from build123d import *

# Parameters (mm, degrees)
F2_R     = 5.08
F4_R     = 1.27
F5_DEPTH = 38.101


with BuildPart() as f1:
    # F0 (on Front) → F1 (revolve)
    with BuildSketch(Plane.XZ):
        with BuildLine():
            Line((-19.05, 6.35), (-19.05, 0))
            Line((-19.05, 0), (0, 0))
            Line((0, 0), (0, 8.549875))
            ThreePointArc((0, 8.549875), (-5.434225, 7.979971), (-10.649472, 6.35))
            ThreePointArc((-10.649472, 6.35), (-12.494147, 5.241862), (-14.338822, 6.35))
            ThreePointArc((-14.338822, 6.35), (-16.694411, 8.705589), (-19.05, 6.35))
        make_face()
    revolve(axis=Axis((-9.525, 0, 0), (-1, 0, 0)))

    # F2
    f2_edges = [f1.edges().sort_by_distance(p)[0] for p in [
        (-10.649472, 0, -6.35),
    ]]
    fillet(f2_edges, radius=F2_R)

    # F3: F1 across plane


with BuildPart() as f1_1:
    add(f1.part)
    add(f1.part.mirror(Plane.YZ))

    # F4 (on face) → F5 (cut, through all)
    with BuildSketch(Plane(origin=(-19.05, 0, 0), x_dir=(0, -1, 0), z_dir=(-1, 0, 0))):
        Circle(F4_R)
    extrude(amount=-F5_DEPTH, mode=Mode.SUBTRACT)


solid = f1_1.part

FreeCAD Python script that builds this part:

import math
import FreeCAD as App
import Part
import Sketcher
Q = App.Units.Quantity


def edges_at(feature, points):
    """Names of the edges that pass closest to the given points."""
    edges = feature.Shape.Edges
    near = lambda p: min(range(len(edges)), key=lambda i: edges[i].distToShape(Part.Vertex(*p))[0])
    return sorted({f"Edge{near(p) + 1}" for p in points})

doc = App.newDocument("Part")
params = doc.addObject("Spreadsheet::Sheet", "Params")
for row, (alias, value) in enumerate([
    ("sketch1_width", "0.75 in"),
    ("sketch1_height", "0.25 in"),
    ("revolution_angle", "360 deg"),
    ("fillet_radius", "0.2 in"),
    ("sketch2_diameter", "0.1 in"),
], start=1):
    params.set(f"A{row}", alias)
    params.set(f"B{row}", "=" + value)
    params.setAlias(f"B{row}", alias)

body = doc.addObject("PartDesign::Body", "Body")

sketch1 = body.newObject("Sketcher::SketchObject", "Sketch")
sketch1.AttachmentSupport = (doc.getObject("XZ_Plane"), [""])
sketch1.MapMode = "FlatFace"
sketch1.addGeometry(Part.LineSegment(App.Vector(-19.1, 6.3, 0), App.Vector(-19.1, 0, 0)), False)
sketch1.addGeometry(Part.LineSegment(App.Vector(-19.1, 0, 0), App.Vector(0, 0, 0)), False)
sketch1.addGeometry(Part.LineSegment(App.Vector(0, 0, 0), App.Vector(0, 8.5, 0)), False)
sketch1.addGeometry(Part.ArcOfCircle(Part.Circle(App.Vector(0.1, -19, 0), App.Vector(0, 0, 1), 27.6), math.radians(90), math.radians(113)), False)
sketch1.addGeometry(Part.ArcOfCircle(Part.Circle(App.Vector(-12.5, 7.3, 0), App.Vector(0, 0, 1), 2.1), math.radians(-152), math.radians(-28)), False)
sketch1.addGeometry(Part.ArcOfCircle(Part.Circle(App.Vector(-16.7, 6.3, 0), App.Vector(0, 0, 1), 2.4), math.radians(0), math.radians(180)), False)
sketch1.addConstraint(Sketcher.Constraint("Coincident", 0, 2, 1, 1))
sketch1.addConstraint(Sketcher.Constraint("Coincident", 1, 2, 2, 1))
sketch1.addConstraint(Sketcher.Constraint("Coincident", 2, 2, 3, 1))
sketch1.addConstraint(Sketcher.Constraint("Coincident", 3, 2, 4, 2))
sketch1.addConstraint(Sketcher.Constraint("Coincident", 4, 1, 5, 1))
sketch1.addConstraint(Sketcher.Constraint("Tangent", 5, 2, 0, 1))
sketch1.addConstraint(Sketcher.Constraint("Vertical", 0))
sketch1.addConstraint(Sketcher.Constraint("Horizontal", 1))
sketch1.addConstraint(Sketcher.Constraint("Vertical", 2))
sketch1.addConstraint(Sketcher.Constraint("Coincident", 1, 2, -1, 1))
sketch1.addConstraint(Sketcher.Constraint("Horizontal", 5, 3, 3, 2))
sketch1.addConstraint(Sketcher.Constraint("Horizontal", 3, 2, 4, 1))
sketch1.addConstraint(Sketcher.Constraint("DistanceX", 1, 1, 1, 2, Q("0.75 in")))
sketch1.addConstraint(Sketcher.Constraint("DistanceY", 0, 2, 0, 1, Q("0.25 in")))
sketch1.addConstraint(Sketcher.Constraint("Radius", 3, Q("27.581558 mm")))
sketch1.addConstraint(Sketcher.Constraint("Radius", 4, Q("2.089449 mm")))
sketch1.addConstraint(Sketcher.Constraint("Radius", 5, Q("2.355589 mm")))
sketch1.addConstraint(Sketcher.Constraint("DistanceY", 3, 3, -1, 1, Q("19.031299 mm")))
sketch1.addConstraint(Sketcher.Constraint("DistanceY", 2, 1, 2, 2, Q("8.549875 mm")))
sketch1.setExpression("Constraints[12]", "Params.sketch1_width")
sketch1.setExpression("Constraints[13]", "Params.sketch1_height")
revolution = body.newObject("PartDesign::Revolution", "Revolution")
revolution.Profile = sketch1
revolution.ReferenceAxis = (sketch1, ["H_Axis"])
revolution.setExpression("Angle", "Params.revolution_angle")
doc.recompute()

fillet = body.newObject("PartDesign::Fillet", "Fillet")
fillet.Base = (revolution, edges_at(revolution, [(-10.649, 0, -6.35)]))
fillet.setExpression("Radius", "Params.fillet_radius")
body2 = doc.addObject("PartDesign::Body", "Body001")
doc.recompute()

body2.BaseFeature = body
doc.recompute()

mirroring = doc.addObject("Part::Mirroring", "Mirroring")
mirroring.Source = body
mirroring.Base = App.Vector(0, 0, 0)
mirroring.Normal = App.Vector(1, 0, 0)
body3 = doc.addObject("PartDesign::Body", "Body002")
body3.BaseFeature = mirroring
boolean = body2.newObject("PartDesign::Boolean", "Boolean")
boolean.Type = "Fuse"
boolean.addObjects([body3])
doc.recompute()

sketch2 = body2.newObject("Sketcher::SketchObject", "Sketch001")
sketch2.AttachmentSupport = (doc.getObject("YZ_Plane001"), [""])
sketch2.MapMode = "FlatFace"
sketch2.AttachmentOffset = App.Placement(App.Vector(0, 0, -0.75 * 25.4), App.Rotation())
sketch2.addGeometry(Part.Circle(App.Vector(0, 0, 0), App.Vector(0, 0, 1), 1.3), False)
sketch2.addConstraint(Sketcher.Constraint("Coincident", 0, 3, -1, 1))
sketch2.addConstraint(Sketcher.Constraint("Diameter", 0, Q("0.1 in")))
sketch2.setExpression("Constraints[1]", "Params.sketch2_diameter")
pocket1 = body2.newObject("PartDesign::Pocket", "Pocket")
pocket1.Profile = sketch2
pocket1.Type = "ThroughAll"
pocket1.Reversed = True
mirroring.Visibility = False

doc.recompute()
